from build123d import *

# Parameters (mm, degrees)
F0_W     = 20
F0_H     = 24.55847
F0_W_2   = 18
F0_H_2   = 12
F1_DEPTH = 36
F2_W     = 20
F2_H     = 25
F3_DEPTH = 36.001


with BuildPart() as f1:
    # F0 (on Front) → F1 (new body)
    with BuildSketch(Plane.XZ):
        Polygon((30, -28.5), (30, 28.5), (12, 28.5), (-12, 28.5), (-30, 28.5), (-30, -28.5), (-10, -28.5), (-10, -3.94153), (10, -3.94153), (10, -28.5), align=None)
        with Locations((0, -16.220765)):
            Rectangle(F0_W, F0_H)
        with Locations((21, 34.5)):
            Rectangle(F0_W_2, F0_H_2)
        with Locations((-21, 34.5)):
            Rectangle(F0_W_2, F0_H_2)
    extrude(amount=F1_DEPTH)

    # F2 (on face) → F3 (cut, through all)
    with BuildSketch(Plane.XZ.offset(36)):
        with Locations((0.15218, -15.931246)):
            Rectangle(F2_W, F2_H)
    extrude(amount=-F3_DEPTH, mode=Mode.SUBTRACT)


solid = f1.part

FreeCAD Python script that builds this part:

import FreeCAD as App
import Part
import Sketcher
from FreeCAD import Vector


def add_polygon(sketch, points):
    """Adds a closed chain of lines whose ends are joined by coincident constraints."""
    first, n = sketch.GeometryCount, len(points)
    for a, b in zip(points, points[1:] + points[:1]):
        sketch.addGeometry(Part.LineSegment(App.Vector(*a, 0), App.Vector(*b, 0)), False)
    for i in range(n):
        sketch.addConstraint(Sketcher.Constraint("Coincident", first + i, 2, first + (i + 1) % n, 1))

doc = App.newDocument("Part")
params = doc.addObject("Spreadsheet::Sheet", "Params")
for row, (alias, value) in enumerate([
    ("sketch1_width", "18 mm"),
    ("sketch1_width2", "24 mm"),
    ("sketch1_height", "69 mm"),
    ("sketch1_height2", "12 mm"),
    ("pad1_length", "36 mm"),
    ("sketch2_width", "20 mm"),
    ("sketch2_height", "25 mm"),
], start=1):
    params.set(f"A{row}", alias)
    params.set(f"B{row}", "=" + value)
    params.setAlias(f"B{row}", alias)

body = doc.addObject("PartDesign::Body", "Body")

# Sketch on XZ plane
sketch1 = body.newObject("Sketcher::SketchObject", "Sketch")
sketch1.AttachmentSupport = (doc.getObject("XZ_Plane"), [""])
sketch1.MapMode = "FlatFace"
add_polygon(sketch1, [(30, -28), (30, 40), (12, 40), (12, 28), (-12, 28), (-12, 40), (-30, 40), (-30, -28)])  # lines 0-7
sketch1.addConstraint([
    Sketcher.Constraint("Vertical", 0),
    Sketcher.Constraint("Horizontal", 1),
    Sketcher.Constraint("Vertical", 2),
    Sketcher.Constraint("Horizontal", 3),
    Sketcher.Constraint("Vertical", 4),
    Sketcher.Constraint("Horizontal", 5),
    Sketcher.Constraint("Vertical", 6),
    Sketcher.Constraint("Horizontal", 7),
    Sketcher.Constraint("Symmetric", 1, 2, 4, 2, -2),
    Sketcher.Constraint("Equal", 1, 5),
    Sketcher.Constraint("DistanceX", 1, 2, 1, 1, 18.0),
    Sketcher.Constraint("DistanceX", 3, 2, 3, 1, 24.0),
    Sketcher.Constraint("DistanceY", 0, 1, 0, 2, 69.0),
    Sketcher.Constraint("DistanceY", 2, 2, 2, 1, 12.0),
    Sketcher.Constraint("DistanceY", -1, 1, 0, 2, 40.5),
])
sketch1.setExpression("Constraints[18]", "Params.sketch1_width")
sketch1.setExpression("Constraints[19]", "Params.sketch1_width2")
sketch1.setExpression("Constraints[20]", "Params.sketch1_height")
sketch1.setExpression("Constraints[21]", "Params.sketch1_height2")
pad1 = body.newObject("PartDesign::Pad", "Pad")
pad1.Profile = sketch1
pad1.setExpression("Length", "Params.pad1_length")

# Sketch on XZ plane
sketch2 = body.newObject("Sketcher::SketchObject", "Sketch001")
sketch2.AttachmentSupport = (doc.getObject("XZ_Plane"), [""])
sketch2.MapMode = "FlatFace"
sketch2.AttachmentOffset = App.Placement(Vector(0, 0, 36), App.Rotation())
add_polygon(sketch2, [(-10, -3), (-10, -28), (10, -28), (10, -3)])  # lines 0-3
sketch2.addConstraint([
    Sketcher.Constraint("Vertical", 0),
    Sketcher.Constraint("Horizontal", 1),
    Sketcher.Constraint("Vertical", 2),
    Sketcher.Constraint("Horizontal", 3),
    Sketcher.Constraint("DistanceX", 1, 1, 1, 2, 20.0),
    Sketcher.Constraint("DistanceY", 0, 2, 0, 1, 25.0),
    Sketcher.Constraint("DistanceX", 0, 2, -1, 1, 9.84782),
    Sketcher.Constraint("DistanceY", 0, 2, -1, 1, 28.431246),
])
sketch2.setExpression("Constraints[8]", "Params.sketch2_width")
sketch2.setExpression("Constraints[9]", "Params.sketch2_height")
pocket1 = body.newObject("PartDesign::Pocket", "Pocket")
pocket1.Profile = sketch2
pocket1.Type = "ThroughAll"

doc.recompute()
